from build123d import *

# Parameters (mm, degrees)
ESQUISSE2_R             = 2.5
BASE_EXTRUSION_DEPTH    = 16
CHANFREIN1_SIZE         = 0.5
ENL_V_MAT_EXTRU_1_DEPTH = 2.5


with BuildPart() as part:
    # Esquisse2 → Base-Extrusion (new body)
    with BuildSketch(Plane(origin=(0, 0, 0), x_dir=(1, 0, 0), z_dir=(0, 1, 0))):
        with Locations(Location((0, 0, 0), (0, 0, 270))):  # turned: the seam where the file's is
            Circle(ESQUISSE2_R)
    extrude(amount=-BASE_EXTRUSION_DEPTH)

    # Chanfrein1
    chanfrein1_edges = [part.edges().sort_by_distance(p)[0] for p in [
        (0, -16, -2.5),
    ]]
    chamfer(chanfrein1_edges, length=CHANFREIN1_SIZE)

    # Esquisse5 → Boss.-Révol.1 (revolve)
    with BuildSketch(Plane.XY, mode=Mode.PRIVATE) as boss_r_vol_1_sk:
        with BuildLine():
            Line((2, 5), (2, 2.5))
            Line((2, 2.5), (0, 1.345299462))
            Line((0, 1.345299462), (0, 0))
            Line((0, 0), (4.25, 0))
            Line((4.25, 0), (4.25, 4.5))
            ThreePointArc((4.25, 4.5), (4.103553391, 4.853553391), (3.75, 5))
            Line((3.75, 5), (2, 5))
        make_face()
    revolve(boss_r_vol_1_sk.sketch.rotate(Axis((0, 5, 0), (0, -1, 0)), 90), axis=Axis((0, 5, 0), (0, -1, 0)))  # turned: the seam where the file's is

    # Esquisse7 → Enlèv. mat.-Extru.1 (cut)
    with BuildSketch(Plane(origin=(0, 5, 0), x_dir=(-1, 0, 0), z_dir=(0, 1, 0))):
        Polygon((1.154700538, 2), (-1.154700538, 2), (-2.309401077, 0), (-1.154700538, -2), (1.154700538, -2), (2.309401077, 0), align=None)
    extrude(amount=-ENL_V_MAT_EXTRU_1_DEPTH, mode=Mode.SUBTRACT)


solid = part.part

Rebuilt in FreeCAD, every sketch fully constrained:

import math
import FreeCAD as App
import Part
import Sketcher
Q = App.Units.Quantity


def edges_at(feature, points):
    """Names of the edges that pass closest to the given points."""
    edges = feature.Shape.Edges
    near = lambda p: min(range(len(edges)), key=lambda i: edges[i].distToShape(Part.Vertex(*p))[0])
    return sorted({f"Edge{near(p) + 1}" for p in points})

doc = App.newDocument("Part")
body = doc.addObject("PartDesign::Body", "Body")

sketch1 = body.newObject("Sketcher::SketchObject", "Sketch")
sketch1.AttachmentSupport = (doc.getObject("XZ_Plane"), [""])
sketch1.MapMode = "FlatFace"
sketch1.addGeometry(Part.Circle(App.Vector(0, 0, 0), App.Vector(0, 0, 1), 2.5), False)
sketch1.addConstraint([
    Sketcher.Constraint("Coincident", 0, 3, -1, 1),
    Sketcher.Constraint("Diameter", 0, Q("5 mm")),
])
pad1 = body.newObject("PartDesign::Pad", "Pad")
pad1.Profile = sketch1
pad1.Length = 16
doc.recompute()

chamfer = body.newObject("PartDesign::Chamfer", "Chamfer")
chamfer.Base = (pad1, edges_at(pad1, [(0, -16, -2.5)]))
chamfer.Size = 0.5

sketch2 = body.newObject("Sketcher::SketchObject", "Sketch001")
sketch2.AttachmentSupport = (doc.getObject("XY_Plane"), [""])
sketch2.MapMode = "FlatFace"
sketch2.addGeometry([
    Part.LineSegment(App.Vector(2, 5, 0), App.Vector(2, 2.5, 0)),
    Part.LineSegment(App.Vector(2, 2.5, 0), App.Vector(0, 1.35, 0)),
    Part.LineSegment(App.Vector(0, 1.35, 0), App.Vector(0, 0, 0)),
    Part.LineSegment(App.Vector(0, 0, 0), App.Vector(4.25, 0, 0)),
    Part.LineSegment(App.Vector(4.25, 0, 0), App.Vector(4.25, 4.5, 0)),
    Part.ArcOfCircle(Part.Circle(App.Vector(3.75, 4.5, 0), App.Vector(0, 0, 1), 0.5), math.radians(0), math.radians(90)),
    Part.LineSegment(App.Vector(3.75, 5, 0), App.Vector(2, 5, 0)),
], False)
sketch2.addConstraint([
    Sketcher.Constraint("Coincident", 0, 2, 1, 1),
    Sketcher.Constraint("Coincident", 1, 2, 2, 1),
    Sketcher.Constraint("Coincident", 2, 2, 3, 1),
    Sketcher.Constraint("Coincident", 3, 2, 4, 1),
    Sketcher.Constraint("Tangent", 4, 2, 5, 1),
    Sketcher.Constraint("Tangent", 5, 2, 6, 1),
    Sketcher.Constraint("Coincident", 6, 2, 0, 1),
    Sketcher.Constraint("Vertical", 0),
    Sketcher.Constraint("Vertical", 2),
    Sketcher.Constraint("Horizontal", 3),
    Sketcher.Constraint("Vertical", 4),
    Sketcher.Constraint("Horizontal", 6),
    Sketcher.Constraint("Coincident", 2, 2, -1, 1),
    Sketcher.Constraint("Radius", 5, Q("0.5 mm")),
    Sketcher.Constraint("Angle", 1, Q("-150 deg")),
    Sketcher.Constraint("DistanceY", 0, 2, 0, 1, Q("2.5 mm")),
    Sketcher.Constraint("DistanceY", 4, 1, 4, 2, Q("4.5 mm")),
    Sketcher.Constraint("DistanceX", -1, 1, 0, 2, Q("2 mm")),
    Sketcher.Constraint("DistanceX", 3, 1, 3, 2, Q("4.25 mm")),
])
revolution = body.newObject("PartDesign::Revolution", "Revolution")
revolution.Profile = sketch2
revolution.ReferenceAxis = (sketch2, ["V_Axis"])
revolution.Angle = 360

sketch3 = body.newObject("Sketcher::SketchObject", "Sketch002")
sketch3.AttachmentSupport = (doc.getObject("XZ_Plane"), [""])
sketch3.MapMode = "FlatFace"
sketch3.AttachmentOffset = App.Placement(App.Vector(0, 0, -5), App.Rotation())
sketch3.addGeometry([
    Part.LineSegment(App.Vector(-1.2, 2, 0), App.Vector(1.2, 2, 0)),
    Part.LineSegment(App.Vector(1.2, 2, 0), App.Vector(2.3, 0, 0)),
    Part.LineSegment(App.Vector(2.3, 0, 0), App.Vector(1.2, -2, 0)),
    Part.LineSegment(App.Vector(1.2, -2, 0), App.Vector(-1.2, -2, 0)),
    Part.LineSegment(App.Vector(-1.2, -2, 0), App.Vector(-2.3, 0, 0)),
    Part.LineSegment(App.Vector(-2.3, 0, 0), App.Vector(-1.2, 2, 0)),
], False)
sketch3.addConstraint([
    Sketcher.Constraint("Coincident", 0, 2, 1, 1),
    Sketcher.Constraint("Coincident", 1, 2, 2, 1),
    Sketcher.Constraint("Coincident", 2, 2, 3, 1),
    Sketcher.Constraint("Coincident", 3, 2, 4, 1),
    Sketcher.Constraint("Coincident", 4, 2, 5, 1),
    Sketcher.Constraint("Coincident", 5, 2, 0, 1),
    Sketcher.Constraint("Horizontal", 0),
    Sketcher.Constraint("Horizontal", 3),
    Sketcher.Constraint("Symmetric", 0, 2, 3, 2, -1, 1),
    Sketcher.Constraint("Symmetric", 1, 2, 4, 2, -1, 1),
    Sketcher.Constraint("PointOnObject", 1, 2, -1),
    Sketcher.Constraint("Parallel", 2, 5),
    Sketcher.Constraint("Vertical", 0, 2, 2, 2),
    Sketcher.Constraint("Angle", 1, Q("-60 deg")),
    Sketcher.Constraint("DistanceY", -1, 1, 0, 2, Q("2 mm")),
    Sketcher.Constraint("DistanceX", 0, 1, 0, 2, Q("2.309401 mm")),
])
pocket1 = body.newObject("PartDesign::Pocket", "Pocket")
pocket1.Profile = sketch3
pocket1.Length = 2.5
pocket1.Reversed = True

doc.recompute()
